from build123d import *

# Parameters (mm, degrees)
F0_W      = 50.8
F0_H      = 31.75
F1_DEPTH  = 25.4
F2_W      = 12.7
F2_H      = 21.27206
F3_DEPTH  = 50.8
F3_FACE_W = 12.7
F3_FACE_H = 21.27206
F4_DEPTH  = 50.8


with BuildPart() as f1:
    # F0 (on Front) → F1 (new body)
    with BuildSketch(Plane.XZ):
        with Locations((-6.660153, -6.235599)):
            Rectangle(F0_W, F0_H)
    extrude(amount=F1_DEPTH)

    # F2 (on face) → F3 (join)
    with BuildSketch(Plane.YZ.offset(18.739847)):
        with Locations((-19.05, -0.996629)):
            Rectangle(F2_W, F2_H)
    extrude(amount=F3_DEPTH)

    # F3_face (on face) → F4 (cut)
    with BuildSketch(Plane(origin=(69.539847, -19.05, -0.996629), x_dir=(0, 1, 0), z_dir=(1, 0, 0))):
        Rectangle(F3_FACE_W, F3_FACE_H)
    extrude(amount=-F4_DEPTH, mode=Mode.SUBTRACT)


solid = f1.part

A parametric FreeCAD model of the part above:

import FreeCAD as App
import Part
import Sketcher
Q = App.Units.Quantity

doc = App.newDocument("Part")
body = doc.addObject("PartDesign::Body", "Body")

# Sketch on XZ plane
sketch1 = body.newObject("Sketcher::SketchObject", "Sketch")
sketch1.AttachmentSupport = (doc.getObject("XZ_Plane"), [""])
sketch1.MapMode = "FlatFace"
sketch1.addGeometry([
    Part.LineSegment(App.Vector(-32, 10, 0), App.Vector(-32, -22, 0)),
    Part.LineSegment(App.Vector(-32, -22, 0), App.Vector(19, -22, 0)),
    Part.LineSegment(App.Vector(19, -22, 0), App.Vector(19, 10, 0)),
    Part.LineSegment(App.Vector(19, 10, 0), App.Vector(-32, 10, 0)),
], False)
sketch1.addConstraint([
    Sketcher.Constraint("Coincident", 0, 2, 1, 1),
    Sketcher.Constraint("Coincident", 1, 2, 2, 1),
    Sketcher.Constraint("Coincident", 2, 2, 3, 1),
    Sketcher.Constraint("Coincident", 3, 2, 0, 1),
    Sketcher.Constraint("Vertical", 0),
    Sketcher.Constraint("Horizontal", 1),
    Sketcher.Constraint("Vertical", 2),
    Sketcher.Constraint("Horizontal", 3),
    Sketcher.Constraint("DistanceX", 1, 1, 1, 2, Q("2 in")),
    Sketcher.Constraint("DistanceY", 0, 2, 0, 1, Q("1.25 in")),
    Sketcher.Constraint("DistanceY", 0, 2, -1, 1, 22.110599),
    Sketcher.Constraint("DistanceX", 0, 2, -1, 1, 32.060153),
])
pad1 = body.newObject("PartDesign::Pad", "Pad")
pad1.Profile = sketch1
pad1.Length = Q("1 in")

# Sketch on YZ plane
sketch2 = body.newObject("Sketcher::SketchObject", "Sketch001")
sketch2.AttachmentSupport = (doc.getObject("YZ_Plane"), [""])
sketch2.MapMode = "FlatFace"
sketch2.AttachmentOffset = App.Placement(App.Vector(0, 0, 18.739847), App.Rotation())
sketch2.addGeometry([
    Part.LineSegment(App.Vector(-25, 10, 0), App.Vector(-25, -12, 0)),
    Part.LineSegment(App.Vector(-25, -12, 0), App.Vector(-13, -12, 0)),
    Part.LineSegment(App.Vector(-13, -12, 0), App.Vector(-13, 10, 0)),
    Part.LineSegment(App.Vector(-13, 10, 0), App.Vector(-25, 10, 0)),
], False)
sketch2.addConstraint([
    Sketcher.Constraint("Coincident", 0, 2, 1, 1),
    Sketcher.Constraint("Coincident", 1, 2, 2, 1),
    Sketcher.Constraint("Coincident", 2, 2, 3, 1),
    Sketcher.Constraint("Coincident", 3, 2, 0, 1),
    Sketcher.Constraint("Vertical", 0),
    Sketcher.Constraint("Horizontal", 1),
    Sketcher.Constraint("Vertical", 2),
    Sketcher.Constraint("Horizontal", 3),
    Sketcher.Constraint("DistanceX", 1, 1, 1, 2, Q("0.5 in")),
    Sketcher.Constraint("DistanceX", 0, 2, -1, 1, Q("1 in")),
    Sketcher.Constraint("DistanceY", 0, 2, 0, 1, 21.27206),
    Sketcher.Constraint("DistanceY", -1, 1, 2, 2, 9.639401),
])
pad2 = body.newObject("PartDesign::Pad", "Pad001")
pad2.Profile = sketch2
pad2.Length = Q("2 in")

# Sketch on YZ plane
sketch3 = body.newObject("Sketcher::SketchObject", "Sketch002")
sketch3.AttachmentSupport = (doc.getObject("YZ_Plane"), [""])
sketch3.MapMode = "FlatFace"
sketch3.AttachmentOffset = App.Placement(App.Vector(0, 0, 69.539847), App.Rotation())
sketch3.addGeometry([
    Part.LineSegment(App.Vector(-25, 10, 0), App.Vector(-25, -12, 0)),
    Part.LineSegment(App.Vector(-25, -12, 0), App.Vector(-13, -12, 0)),
    Part.LineSegment(App.Vector(-13, -12, 0), App.Vector(-13, 10, 0)),
    Part.LineSegment(App.Vector(-13, 10, 0), App.Vector(-25, 10, 0)),
], False)
sketch3.addConstraint([
    Sketcher.Constraint("Coincident", 0, 2, 1, 1),
    Sketcher.Constraint("Coincident", 1, 2, 2, 1),
    Sketcher.Constraint("Coincident", 2, 2, 3, 1),
    Sketcher.Constraint("Coincident", 3, 2, 0, 1),
    Sketcher.Constraint("Vertical", 0),
    Sketcher.Constraint("Horizontal", 1),
    Sketcher.Constraint("Vertical", 2),
    Sketcher.Constraint("Horizontal", 3),
    Sketcher.Constraint("DistanceX", 1, 1, 1, 2, Q("0.5 in")),
    Sketcher.Constraint("DistanceX", 0, 2, -1, 1, Q("1 in")),
    Sketcher.Constraint("DistanceY", 0, 2, 0, 1, 21.27206),
    Sketcher.Constraint("DistanceY", -1, 1, 2, 2, 9.639401),
])
pocket1 = body.newObject("PartDesign::Pocket", "Pocket")
pocket1.Profile = sketch3
pocket1.Length = Q("2 in")

doc.recompute()
